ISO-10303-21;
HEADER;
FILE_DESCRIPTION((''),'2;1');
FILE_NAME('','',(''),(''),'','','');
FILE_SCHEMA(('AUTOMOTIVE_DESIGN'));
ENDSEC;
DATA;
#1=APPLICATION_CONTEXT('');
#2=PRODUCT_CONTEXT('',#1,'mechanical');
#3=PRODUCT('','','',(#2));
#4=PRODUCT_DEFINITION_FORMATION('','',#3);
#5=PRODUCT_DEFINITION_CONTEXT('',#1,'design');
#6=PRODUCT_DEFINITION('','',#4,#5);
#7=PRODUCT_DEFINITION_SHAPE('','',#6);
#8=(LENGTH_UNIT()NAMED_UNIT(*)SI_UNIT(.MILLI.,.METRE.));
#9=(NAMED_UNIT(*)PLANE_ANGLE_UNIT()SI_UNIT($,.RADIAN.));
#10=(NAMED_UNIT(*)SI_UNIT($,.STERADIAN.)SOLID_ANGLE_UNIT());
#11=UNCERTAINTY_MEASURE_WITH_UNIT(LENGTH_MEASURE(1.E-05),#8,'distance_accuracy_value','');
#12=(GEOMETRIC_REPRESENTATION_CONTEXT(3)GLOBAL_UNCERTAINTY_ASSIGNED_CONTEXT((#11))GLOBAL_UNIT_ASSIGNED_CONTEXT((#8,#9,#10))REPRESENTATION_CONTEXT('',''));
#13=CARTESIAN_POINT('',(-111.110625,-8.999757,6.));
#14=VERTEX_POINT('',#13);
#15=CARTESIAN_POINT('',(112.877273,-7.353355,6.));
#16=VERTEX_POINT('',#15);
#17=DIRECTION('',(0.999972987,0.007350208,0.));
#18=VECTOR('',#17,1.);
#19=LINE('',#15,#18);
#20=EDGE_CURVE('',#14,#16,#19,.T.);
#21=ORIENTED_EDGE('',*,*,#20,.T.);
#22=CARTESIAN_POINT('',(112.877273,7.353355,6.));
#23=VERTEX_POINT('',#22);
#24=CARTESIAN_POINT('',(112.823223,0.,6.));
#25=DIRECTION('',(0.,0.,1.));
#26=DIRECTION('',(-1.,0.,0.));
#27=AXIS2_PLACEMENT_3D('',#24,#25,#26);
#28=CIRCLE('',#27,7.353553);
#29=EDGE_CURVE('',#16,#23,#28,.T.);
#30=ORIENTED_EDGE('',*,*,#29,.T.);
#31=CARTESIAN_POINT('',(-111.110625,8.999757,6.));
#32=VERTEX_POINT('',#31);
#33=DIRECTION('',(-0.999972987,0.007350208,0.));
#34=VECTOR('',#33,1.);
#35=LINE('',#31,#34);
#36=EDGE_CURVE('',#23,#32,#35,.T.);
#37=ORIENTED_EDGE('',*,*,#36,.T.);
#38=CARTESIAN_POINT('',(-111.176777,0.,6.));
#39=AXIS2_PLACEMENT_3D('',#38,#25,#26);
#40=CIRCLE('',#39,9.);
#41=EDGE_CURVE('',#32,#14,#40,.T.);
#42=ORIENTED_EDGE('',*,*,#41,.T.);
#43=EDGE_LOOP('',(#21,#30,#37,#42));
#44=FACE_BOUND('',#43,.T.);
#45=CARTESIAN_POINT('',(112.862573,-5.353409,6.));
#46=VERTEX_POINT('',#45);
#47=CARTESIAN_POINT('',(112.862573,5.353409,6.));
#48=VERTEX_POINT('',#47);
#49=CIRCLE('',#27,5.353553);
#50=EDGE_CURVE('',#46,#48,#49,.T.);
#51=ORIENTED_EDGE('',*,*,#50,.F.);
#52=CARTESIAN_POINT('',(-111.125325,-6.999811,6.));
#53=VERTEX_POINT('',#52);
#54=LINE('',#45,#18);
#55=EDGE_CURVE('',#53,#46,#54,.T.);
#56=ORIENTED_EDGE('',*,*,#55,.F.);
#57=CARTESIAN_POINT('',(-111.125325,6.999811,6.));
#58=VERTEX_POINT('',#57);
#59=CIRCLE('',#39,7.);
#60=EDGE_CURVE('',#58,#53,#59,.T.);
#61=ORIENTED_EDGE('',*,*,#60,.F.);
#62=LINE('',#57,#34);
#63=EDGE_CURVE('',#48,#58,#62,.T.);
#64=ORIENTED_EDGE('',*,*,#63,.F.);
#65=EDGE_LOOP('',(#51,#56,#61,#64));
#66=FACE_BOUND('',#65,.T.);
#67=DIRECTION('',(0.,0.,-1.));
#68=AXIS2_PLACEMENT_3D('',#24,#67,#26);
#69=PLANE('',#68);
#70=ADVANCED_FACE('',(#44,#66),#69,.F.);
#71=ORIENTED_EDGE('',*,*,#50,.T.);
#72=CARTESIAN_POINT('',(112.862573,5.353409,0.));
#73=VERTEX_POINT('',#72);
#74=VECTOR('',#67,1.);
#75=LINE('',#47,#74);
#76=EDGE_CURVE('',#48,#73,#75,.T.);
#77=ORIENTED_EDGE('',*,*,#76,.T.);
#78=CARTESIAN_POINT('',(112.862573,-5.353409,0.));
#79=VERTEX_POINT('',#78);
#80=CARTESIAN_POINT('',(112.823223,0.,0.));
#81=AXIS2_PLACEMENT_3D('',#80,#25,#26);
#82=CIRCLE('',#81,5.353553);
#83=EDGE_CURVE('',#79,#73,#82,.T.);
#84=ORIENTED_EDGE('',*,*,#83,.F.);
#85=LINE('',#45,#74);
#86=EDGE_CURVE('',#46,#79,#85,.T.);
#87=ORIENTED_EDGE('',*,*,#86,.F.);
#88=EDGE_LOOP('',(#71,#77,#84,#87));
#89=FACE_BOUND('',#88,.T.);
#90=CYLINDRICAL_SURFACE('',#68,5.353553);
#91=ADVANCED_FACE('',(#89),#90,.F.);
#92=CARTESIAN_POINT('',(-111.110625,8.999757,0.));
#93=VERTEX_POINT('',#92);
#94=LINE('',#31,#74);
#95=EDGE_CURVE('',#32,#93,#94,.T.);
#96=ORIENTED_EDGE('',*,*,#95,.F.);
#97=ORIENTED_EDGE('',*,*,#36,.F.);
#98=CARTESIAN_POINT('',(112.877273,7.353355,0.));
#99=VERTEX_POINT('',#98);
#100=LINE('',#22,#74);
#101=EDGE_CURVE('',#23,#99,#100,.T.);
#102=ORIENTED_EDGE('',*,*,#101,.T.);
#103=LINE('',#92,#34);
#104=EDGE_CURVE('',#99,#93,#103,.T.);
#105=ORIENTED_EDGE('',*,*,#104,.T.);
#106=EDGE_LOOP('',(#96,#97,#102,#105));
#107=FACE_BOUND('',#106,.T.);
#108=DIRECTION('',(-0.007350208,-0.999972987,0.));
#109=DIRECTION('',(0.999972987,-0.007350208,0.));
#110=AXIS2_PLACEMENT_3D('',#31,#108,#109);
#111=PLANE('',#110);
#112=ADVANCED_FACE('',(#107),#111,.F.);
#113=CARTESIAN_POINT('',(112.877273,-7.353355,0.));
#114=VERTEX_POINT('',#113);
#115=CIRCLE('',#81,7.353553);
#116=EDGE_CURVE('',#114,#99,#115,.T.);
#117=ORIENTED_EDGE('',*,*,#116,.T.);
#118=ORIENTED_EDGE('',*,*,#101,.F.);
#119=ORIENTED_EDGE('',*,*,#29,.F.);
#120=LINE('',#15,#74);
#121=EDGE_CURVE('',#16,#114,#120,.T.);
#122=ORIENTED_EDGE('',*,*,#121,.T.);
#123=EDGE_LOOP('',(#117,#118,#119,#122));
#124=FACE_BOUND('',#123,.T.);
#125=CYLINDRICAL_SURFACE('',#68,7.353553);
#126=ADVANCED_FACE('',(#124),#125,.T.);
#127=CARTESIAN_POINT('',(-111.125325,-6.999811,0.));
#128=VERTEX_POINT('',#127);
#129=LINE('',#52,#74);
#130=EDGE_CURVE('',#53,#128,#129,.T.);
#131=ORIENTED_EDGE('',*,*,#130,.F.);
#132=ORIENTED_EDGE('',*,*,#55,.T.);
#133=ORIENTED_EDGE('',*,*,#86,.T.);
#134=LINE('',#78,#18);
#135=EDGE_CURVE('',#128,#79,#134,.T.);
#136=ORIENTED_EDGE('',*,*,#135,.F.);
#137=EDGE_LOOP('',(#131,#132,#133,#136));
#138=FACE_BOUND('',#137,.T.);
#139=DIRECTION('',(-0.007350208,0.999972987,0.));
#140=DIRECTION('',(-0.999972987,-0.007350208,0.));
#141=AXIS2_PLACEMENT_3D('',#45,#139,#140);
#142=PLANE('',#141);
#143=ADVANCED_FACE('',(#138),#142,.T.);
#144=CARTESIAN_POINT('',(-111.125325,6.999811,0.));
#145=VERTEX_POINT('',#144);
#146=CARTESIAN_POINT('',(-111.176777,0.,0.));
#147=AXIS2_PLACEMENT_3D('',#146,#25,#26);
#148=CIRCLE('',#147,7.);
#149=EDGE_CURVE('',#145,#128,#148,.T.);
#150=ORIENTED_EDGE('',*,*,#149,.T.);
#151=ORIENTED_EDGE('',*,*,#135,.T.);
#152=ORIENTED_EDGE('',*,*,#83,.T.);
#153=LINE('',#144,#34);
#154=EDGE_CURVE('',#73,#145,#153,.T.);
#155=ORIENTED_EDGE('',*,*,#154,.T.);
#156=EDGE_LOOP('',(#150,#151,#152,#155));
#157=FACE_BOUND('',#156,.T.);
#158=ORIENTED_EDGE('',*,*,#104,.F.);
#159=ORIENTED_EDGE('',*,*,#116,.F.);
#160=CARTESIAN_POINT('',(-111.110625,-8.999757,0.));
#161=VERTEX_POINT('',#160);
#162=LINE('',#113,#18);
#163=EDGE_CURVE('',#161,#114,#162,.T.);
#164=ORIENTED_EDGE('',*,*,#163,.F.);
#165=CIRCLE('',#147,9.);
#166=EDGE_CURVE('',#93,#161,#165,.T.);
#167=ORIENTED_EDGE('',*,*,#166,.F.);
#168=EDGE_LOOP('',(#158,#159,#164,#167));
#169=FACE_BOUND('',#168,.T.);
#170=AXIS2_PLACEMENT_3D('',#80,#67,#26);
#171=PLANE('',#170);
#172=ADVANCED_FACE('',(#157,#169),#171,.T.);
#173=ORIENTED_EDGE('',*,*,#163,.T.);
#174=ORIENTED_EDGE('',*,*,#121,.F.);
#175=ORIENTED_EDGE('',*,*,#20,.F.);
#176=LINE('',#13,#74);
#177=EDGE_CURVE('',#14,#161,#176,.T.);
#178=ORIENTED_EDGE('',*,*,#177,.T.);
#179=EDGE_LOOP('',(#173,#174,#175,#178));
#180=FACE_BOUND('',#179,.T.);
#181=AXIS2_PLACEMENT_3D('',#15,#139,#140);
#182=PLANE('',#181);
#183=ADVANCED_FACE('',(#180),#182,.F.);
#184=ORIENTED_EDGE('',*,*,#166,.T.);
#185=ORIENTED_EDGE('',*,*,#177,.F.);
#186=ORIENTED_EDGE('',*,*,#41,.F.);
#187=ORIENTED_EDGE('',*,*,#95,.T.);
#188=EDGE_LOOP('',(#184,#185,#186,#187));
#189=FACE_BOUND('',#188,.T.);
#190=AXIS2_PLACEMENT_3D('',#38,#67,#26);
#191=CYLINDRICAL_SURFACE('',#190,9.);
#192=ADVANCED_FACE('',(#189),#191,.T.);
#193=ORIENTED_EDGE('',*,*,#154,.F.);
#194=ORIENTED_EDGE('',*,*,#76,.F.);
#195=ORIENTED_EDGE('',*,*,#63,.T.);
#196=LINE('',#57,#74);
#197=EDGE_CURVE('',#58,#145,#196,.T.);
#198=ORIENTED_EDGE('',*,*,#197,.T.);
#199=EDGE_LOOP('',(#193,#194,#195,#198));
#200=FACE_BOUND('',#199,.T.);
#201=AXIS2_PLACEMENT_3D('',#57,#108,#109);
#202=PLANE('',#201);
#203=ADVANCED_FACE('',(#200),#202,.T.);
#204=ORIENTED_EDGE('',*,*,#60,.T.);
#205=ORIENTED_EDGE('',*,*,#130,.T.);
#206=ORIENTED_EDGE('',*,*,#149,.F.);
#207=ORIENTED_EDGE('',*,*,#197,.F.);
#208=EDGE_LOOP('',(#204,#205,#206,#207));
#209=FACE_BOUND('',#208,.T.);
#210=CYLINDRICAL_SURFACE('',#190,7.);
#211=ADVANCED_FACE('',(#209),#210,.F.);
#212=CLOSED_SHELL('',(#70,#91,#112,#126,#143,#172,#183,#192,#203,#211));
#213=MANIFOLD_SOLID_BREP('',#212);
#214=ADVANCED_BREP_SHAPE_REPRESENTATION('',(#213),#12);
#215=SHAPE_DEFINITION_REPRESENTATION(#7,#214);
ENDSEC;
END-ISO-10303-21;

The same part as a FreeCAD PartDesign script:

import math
import FreeCAD as App
import Part
import Sketcher
from FreeCAD import Vector
Q = App.Units.Quantity

doc = App.newDocument("Part")
body = doc.addObject("PartDesign::Body", "Body")

# Sketch on XY plane
sketch1 = doc.addObject("Sketcher::SketchObject", "Sketch")
body.addObject(sketch1)
sketch1.AttachmentSupport = (doc.XY_Plane, [""])
sketch1.MapMode = "FlatFace"
sketch1.addGeometry([
    Part.LineSegment(Vector(-111, -9, 0), Vector(113, -7, 0)),  # 0
    Part.ArcOfCircle(Part.Circle(Vector(113, 0, 0), Vector(0, 0, 1), 7), math.radians(-90), math.radians(90)),  # 1
    Part.LineSegment(Vector(113, 7, 0), Vector(-111, 9, 0)),  # 2
    Part.ArcOfCircle(Part.Circle(Vector(-111, 0, 0), Vector(0, 0, 1), 9), math.radians(90), math.radians(270)),  # 3
    Part.LineSegment(Vector(113, -5, 0), Vector(-111, -7, 0)),  # 4
    Part.ArcOfCircle(Part.Circle(Vector(-111, 0, 0), Vector(0, 0, 1), 7), math.radians(90), math.radians(270)),  # 5
    Part.LineSegment(Vector(-111, 7, 0), Vector(113, 5, 0)),  # 6
    Part.ArcOfCircle(Part.Circle(Vector(113, 0, 0), Vector(0, 0, 1), 5), math.radians(-90), math.radians(90)),  # 7
], False)
sketch1.addConstraint([
    Sketcher.Constraint("Tangent", 0, 2, 1, 1),
    Sketcher.Constraint("Tangent", 1, 2, 2, 1),
    Sketcher.Constraint("Tangent", 2, 2, 3, 1),
    Sketcher.Constraint("Tangent", 3, 2, 0, 1),
    Sketcher.Constraint("Tangent", 4, 2, 5, 2),
    Sketcher.Constraint("Tangent", 5, 1, 6, 1),
    Sketcher.Constraint("Tangent", 6, 2, 7, 2),
    Sketcher.Constraint("Tangent", 7, 1, 4, 1),
    Sketcher.Constraint("Coincident", 5, 3, 3, 3),
    Sketcher.Constraint("Coincident", 7, 3, 1, 3),
    Sketcher.Constraint("Symmetric", 0, 2, 1, 2, -1),
    Sketcher.Constraint("Parallel", 0, 4),
    Sketcher.Constraint("Radius", 3, Q("9 mm")),
    Sketcher.Constraint("Radius", 5, Q("7 mm")),
    Sketcher.Constraint("DistanceX", 3, 3, 1, 3, Q("224 mm")),
    Sketcher.Constraint("Radius", 1, Q("7.353553 mm")),
    Sketcher.Constraint("DistanceX", -1, 1, 1, 3, Q("112.823223 mm")),
])
pad1 = doc.addObject("PartDesign::Pad", "Pad")
body.addObject(pad1)
pad1.Profile = sketch1
pad1.Length = 6

doc.recompute()
